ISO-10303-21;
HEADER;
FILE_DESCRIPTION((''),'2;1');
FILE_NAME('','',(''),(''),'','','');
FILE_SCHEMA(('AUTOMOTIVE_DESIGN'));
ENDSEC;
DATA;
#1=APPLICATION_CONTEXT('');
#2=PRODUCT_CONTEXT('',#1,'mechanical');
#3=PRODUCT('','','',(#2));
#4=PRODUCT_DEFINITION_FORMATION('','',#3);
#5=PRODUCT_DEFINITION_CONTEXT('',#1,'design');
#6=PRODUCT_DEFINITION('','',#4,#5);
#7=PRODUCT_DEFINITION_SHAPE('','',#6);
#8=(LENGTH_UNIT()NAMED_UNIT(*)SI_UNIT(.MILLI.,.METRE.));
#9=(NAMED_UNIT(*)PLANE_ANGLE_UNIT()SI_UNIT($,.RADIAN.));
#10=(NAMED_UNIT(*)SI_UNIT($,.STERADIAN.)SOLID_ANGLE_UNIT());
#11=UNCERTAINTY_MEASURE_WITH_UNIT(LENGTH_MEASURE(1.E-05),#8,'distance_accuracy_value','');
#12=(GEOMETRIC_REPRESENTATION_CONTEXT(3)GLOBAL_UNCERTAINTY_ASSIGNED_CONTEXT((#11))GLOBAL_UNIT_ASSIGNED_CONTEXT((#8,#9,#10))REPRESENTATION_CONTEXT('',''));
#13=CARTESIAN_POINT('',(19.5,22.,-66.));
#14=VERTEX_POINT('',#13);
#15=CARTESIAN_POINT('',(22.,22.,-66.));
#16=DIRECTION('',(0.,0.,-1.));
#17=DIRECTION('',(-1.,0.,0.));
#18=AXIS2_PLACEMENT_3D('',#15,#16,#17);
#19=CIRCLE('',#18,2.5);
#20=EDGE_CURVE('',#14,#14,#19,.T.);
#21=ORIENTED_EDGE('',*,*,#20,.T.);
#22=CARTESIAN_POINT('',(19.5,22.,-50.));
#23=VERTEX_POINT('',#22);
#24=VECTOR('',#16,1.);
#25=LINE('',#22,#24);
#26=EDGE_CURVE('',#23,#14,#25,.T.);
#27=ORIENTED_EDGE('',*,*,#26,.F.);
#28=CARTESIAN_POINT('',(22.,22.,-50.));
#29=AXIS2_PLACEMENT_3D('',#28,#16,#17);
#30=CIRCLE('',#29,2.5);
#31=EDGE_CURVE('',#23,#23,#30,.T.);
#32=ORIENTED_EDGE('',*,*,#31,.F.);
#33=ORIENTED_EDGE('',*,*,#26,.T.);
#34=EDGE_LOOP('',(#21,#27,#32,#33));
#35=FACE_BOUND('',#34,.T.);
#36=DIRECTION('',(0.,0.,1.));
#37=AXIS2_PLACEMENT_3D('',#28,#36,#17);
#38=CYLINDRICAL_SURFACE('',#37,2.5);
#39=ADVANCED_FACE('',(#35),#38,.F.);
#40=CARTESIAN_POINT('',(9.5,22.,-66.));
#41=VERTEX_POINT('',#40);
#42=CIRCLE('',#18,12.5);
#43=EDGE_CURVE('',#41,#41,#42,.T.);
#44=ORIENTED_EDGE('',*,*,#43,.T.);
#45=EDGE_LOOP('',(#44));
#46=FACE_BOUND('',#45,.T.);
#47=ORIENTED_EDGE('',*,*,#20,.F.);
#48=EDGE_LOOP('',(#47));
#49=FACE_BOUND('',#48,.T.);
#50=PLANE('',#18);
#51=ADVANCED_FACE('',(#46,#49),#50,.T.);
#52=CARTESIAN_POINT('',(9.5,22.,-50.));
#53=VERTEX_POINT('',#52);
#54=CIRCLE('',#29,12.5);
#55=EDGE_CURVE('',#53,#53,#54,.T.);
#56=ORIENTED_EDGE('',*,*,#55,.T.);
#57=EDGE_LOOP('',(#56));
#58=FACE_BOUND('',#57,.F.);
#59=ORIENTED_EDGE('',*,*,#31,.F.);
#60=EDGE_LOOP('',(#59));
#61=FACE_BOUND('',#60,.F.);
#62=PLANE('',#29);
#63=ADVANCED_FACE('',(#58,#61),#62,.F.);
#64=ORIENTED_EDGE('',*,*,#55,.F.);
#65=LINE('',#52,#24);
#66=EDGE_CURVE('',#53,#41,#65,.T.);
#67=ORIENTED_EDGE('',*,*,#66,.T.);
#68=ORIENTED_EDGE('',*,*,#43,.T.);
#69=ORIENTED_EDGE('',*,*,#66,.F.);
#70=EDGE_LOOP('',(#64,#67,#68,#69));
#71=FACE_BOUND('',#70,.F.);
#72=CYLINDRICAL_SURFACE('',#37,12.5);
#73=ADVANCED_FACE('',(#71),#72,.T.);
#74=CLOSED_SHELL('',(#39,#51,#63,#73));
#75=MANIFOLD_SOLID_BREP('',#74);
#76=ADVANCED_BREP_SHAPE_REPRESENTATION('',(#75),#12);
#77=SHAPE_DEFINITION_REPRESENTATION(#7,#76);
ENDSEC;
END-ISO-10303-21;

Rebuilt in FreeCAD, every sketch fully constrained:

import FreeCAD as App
import Part
import Sketcher

V = App.Vector

doc = App.newDocument("Part")
body = doc.addObject("PartDesign::Body", "Body")

# Sketch on XY plane
sketch1 = body.newObject("Sketcher::SketchObject", "Sketch")
sketch1.AttachmentSupport = (doc.getObject("XY_Plane"), [""])
sketch1.MapMode = "FlatFace"
sketch1.addGeometry(Part.Circle(V(0, 0, 0), V(0, 0, 1), 2.5), False)
sketch1.addConstraint(Sketcher.Constraint("Coincident", 0, 3, -1, 1))
sketch1.addConstraint(Sketcher.Constraint("Diameter", 0, 5.0))
pad1 = body.newObject("PartDesign::Pad", "Pad")
pad1.Profile = sketch1
pad1.Length = 16
pad1.Reversed = True
body2 = doc.addObject("PartDesign::Body", "Body001")

# Sketch on XY plane
sketch2 = body2.newObject("Sketcher::SketchObject", "Sketch001")
sketch2.AttachmentSupport = (doc.getObject("XY_Plane001"), [""])
sketch2.MapMode = "FlatFace"
sketch2.addGeometry(Part.Circle(V(0, 0, 0), V(0, 0, 1), 12), False)
sketch2.addConstraint(Sketcher.Constraint("Coincident", 0, 3, -1, 1))
sketch2.addConstraint(Sketcher.Constraint("Diameter", 0, 25.0))
pad2 = body2.newObject("PartDesign::Pad", "Pad001")
pad2.Profile = sketch2
pad2.Length = 16
pad2.Reversed = True
doc.recompute()

boolean = body2.newObject("PartDesign::Boolean", "Boolean")
boolean.Type = "Cut"
boolean.addObjects([body])
body3 = doc.addObject("PartDesign::Body", "Body002")
doc.recompute()

body2.Placement = App.Placement(V(22, 22, -50), App.Rotation(V(0, 0, 1), 0))
boolean2 = body3.newObject("PartDesign::Boolean", "Boolean001")
boolean2.Type = "Fuse"
boolean2.addObjects([body2])

doc.recompute()
